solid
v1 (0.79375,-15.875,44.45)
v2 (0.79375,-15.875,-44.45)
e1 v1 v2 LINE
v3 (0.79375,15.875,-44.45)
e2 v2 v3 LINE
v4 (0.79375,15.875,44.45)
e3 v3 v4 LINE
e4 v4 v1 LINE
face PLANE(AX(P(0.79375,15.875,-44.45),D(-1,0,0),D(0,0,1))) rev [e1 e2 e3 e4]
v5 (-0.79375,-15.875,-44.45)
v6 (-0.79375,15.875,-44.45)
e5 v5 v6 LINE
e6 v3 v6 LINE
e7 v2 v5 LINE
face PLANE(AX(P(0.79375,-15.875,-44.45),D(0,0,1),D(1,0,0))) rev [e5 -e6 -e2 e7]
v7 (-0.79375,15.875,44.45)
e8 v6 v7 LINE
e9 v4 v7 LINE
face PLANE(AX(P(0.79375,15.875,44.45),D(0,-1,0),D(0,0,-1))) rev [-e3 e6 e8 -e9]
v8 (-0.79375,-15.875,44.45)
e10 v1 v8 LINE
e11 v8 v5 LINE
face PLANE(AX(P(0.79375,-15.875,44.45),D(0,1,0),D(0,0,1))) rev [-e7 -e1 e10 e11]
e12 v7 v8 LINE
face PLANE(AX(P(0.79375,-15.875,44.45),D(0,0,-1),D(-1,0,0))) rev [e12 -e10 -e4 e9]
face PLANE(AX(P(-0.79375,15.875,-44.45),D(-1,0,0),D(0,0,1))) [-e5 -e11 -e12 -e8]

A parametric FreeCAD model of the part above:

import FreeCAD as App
import Part
import Sketcher
Q = App.Units.Quantity


def add_polygon(sketch, points):
    """Adds a closed chain of lines whose ends are joined by coincident constraints."""
    first, n = sketch.GeometryCount, len(points)
    for a, b in zip(points, points[1:] + points[:1]):
        sketch.addGeometry(Part.LineSegment(App.Vector(*a, 0), App.Vector(*b, 0)), False)
    for i in range(n):
        sketch.addConstraint(Sketcher.Constraint("Coincident", first + i, 2, first + (i + 1) % n, 1))

doc = App.newDocument("Part")
body = doc.addObject("PartDesign::Body", "Body")

sketch1 = body.newObject("Sketcher::SketchObject", "Sketch")
sketch1.AttachmentSupport = (doc.getObject("YZ_Plane"), [""])
sketch1.MapMode = "FlatFace"
add_polygon(sketch1, [(16, 44), (-16, 44), (-16, -44), (16, -44)])
sketch1.addConstraint([
    Sketcher.Constraint("Horizontal", 0),
    Sketcher.Constraint("Vertical", 1),
    Sketcher.Constraint("Horizontal", 2),
    Sketcher.Constraint("Vertical", 3),
    Sketcher.Constraint("Symmetric", 0, 2, 2, 2, -1, 1),
    Sketcher.Constraint("DistanceY", 1, 2, 1, 1, Q("3.5 in")),
    Sketcher.Constraint("DistanceX", 0, 2, 0, 1, Q("1.25 in")),
])
pad1 = body.newObject("PartDesign::Pad", "Pad")
pad1.Profile = sketch1
pad1.Length = Q("0.0625 in")
pad1.Midplane = True

doc.recompute()
